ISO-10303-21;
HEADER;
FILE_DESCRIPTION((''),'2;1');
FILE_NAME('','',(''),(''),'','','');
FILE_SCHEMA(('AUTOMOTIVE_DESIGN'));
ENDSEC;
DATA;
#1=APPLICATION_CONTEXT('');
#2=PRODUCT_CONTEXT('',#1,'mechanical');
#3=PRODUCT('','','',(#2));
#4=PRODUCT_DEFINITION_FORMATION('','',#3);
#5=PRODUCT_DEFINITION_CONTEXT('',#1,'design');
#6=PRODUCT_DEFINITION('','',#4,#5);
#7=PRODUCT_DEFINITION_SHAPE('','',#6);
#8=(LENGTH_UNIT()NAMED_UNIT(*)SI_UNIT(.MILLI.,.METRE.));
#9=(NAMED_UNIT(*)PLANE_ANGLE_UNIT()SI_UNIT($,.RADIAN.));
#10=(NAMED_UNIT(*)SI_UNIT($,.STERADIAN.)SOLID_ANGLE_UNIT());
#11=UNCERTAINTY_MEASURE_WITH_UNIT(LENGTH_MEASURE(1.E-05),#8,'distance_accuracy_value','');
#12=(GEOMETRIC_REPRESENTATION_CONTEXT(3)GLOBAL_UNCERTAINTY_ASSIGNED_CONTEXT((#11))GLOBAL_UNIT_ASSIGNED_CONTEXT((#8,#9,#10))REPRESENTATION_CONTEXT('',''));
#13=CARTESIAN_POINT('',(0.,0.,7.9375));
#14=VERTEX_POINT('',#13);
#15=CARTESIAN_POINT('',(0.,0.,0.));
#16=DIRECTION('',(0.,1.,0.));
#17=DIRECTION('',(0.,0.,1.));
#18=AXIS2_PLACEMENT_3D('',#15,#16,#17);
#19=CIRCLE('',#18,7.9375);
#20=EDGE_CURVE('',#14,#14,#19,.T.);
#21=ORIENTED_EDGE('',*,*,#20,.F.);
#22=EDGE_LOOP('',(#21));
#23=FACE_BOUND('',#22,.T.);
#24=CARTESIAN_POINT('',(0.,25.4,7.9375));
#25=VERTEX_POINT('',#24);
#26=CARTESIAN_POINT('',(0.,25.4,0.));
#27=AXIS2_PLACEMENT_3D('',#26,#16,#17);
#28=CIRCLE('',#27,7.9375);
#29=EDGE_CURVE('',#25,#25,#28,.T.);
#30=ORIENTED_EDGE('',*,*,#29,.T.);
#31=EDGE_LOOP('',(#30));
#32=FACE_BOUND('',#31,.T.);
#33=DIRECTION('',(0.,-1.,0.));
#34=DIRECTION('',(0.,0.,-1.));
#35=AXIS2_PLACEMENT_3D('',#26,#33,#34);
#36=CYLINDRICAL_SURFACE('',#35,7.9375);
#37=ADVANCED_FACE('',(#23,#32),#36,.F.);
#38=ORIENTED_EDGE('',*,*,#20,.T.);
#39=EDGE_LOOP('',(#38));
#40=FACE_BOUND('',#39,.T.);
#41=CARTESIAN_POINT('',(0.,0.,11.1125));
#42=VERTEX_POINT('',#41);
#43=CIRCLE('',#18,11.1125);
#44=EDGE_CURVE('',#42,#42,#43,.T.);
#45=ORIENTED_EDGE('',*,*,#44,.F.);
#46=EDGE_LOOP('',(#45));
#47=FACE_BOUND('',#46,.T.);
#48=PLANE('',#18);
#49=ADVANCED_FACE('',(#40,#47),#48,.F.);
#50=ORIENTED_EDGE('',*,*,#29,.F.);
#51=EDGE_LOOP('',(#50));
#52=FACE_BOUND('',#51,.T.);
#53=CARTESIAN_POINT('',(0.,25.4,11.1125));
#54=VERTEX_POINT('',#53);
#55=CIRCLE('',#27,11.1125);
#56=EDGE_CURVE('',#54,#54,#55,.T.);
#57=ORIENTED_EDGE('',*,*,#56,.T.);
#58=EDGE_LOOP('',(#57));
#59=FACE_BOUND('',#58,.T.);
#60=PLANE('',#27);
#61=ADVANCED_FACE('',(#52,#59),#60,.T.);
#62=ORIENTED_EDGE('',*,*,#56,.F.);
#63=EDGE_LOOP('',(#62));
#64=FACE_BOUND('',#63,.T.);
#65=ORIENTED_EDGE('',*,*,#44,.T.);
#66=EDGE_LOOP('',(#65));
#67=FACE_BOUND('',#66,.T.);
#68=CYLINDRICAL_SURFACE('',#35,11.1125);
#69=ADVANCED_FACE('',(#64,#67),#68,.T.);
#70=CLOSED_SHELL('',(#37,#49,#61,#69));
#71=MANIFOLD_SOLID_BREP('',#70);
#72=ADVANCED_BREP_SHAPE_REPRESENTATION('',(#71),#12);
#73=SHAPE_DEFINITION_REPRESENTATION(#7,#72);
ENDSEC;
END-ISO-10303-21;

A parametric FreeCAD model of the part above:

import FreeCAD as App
import Part
import Sketcher
Q = App.Units.Quantity

doc = App.newDocument("Part")
params = doc.addObject("Spreadsheet::Sheet", "Params")
for row, (alias, value) in enumerate([
    ("sketch1_diameter", "0.875 in"),
    ("sketch1_diameter2", "0.625 in"),
    ("pad1_length", "1 in"),
], start=1):
    params.set(f"A{row}", alias)
    params.set(f"B{row}", "=" + value)
    params.setAlias(f"B{row}", alias)

body = doc.addObject("PartDesign::Body", "Body")

# Sketch on XZ plane
sketch1 = doc.addObject("Sketcher::SketchObject", "Sketch")
body.addObject(sketch1)
sketch1.AttachmentSupport = (doc.XZ_Plane, [""])
sketch1.MapMode = "FlatFace"
sketch1.addGeometry([
    Part.Circle(App.Vector(0, 0, 0), App.Vector(0, 0, 1), 11),
    Part.Circle(App.Vector(0, 0, 0), App.Vector(0, 0, 1), 8),
], False)
sketch1.addConstraint([
    Sketcher.Constraint("Coincident", 0, 3, -1, 1),
    Sketcher.Constraint("Coincident", 1, 3, -1, 1),
    Sketcher.Constraint("Diameter", 0, Q("0.875 in")),
    Sketcher.Constraint("Diameter", 1, Q("0.625 in")),
])
sketch1.setExpression("Constraints[2]", "Params.sketch1_diameter")
sketch1.setExpression("Constraints[3]", "Params.sketch1_diameter2")
pad1 = doc.addObject("PartDesign::Pad", "Pad")
body.addObject(pad1)
pad1.Profile = sketch1
pad1.setExpression("Length", "Params.pad1_length")
pad1.Reversed = True

doc.recompute()
